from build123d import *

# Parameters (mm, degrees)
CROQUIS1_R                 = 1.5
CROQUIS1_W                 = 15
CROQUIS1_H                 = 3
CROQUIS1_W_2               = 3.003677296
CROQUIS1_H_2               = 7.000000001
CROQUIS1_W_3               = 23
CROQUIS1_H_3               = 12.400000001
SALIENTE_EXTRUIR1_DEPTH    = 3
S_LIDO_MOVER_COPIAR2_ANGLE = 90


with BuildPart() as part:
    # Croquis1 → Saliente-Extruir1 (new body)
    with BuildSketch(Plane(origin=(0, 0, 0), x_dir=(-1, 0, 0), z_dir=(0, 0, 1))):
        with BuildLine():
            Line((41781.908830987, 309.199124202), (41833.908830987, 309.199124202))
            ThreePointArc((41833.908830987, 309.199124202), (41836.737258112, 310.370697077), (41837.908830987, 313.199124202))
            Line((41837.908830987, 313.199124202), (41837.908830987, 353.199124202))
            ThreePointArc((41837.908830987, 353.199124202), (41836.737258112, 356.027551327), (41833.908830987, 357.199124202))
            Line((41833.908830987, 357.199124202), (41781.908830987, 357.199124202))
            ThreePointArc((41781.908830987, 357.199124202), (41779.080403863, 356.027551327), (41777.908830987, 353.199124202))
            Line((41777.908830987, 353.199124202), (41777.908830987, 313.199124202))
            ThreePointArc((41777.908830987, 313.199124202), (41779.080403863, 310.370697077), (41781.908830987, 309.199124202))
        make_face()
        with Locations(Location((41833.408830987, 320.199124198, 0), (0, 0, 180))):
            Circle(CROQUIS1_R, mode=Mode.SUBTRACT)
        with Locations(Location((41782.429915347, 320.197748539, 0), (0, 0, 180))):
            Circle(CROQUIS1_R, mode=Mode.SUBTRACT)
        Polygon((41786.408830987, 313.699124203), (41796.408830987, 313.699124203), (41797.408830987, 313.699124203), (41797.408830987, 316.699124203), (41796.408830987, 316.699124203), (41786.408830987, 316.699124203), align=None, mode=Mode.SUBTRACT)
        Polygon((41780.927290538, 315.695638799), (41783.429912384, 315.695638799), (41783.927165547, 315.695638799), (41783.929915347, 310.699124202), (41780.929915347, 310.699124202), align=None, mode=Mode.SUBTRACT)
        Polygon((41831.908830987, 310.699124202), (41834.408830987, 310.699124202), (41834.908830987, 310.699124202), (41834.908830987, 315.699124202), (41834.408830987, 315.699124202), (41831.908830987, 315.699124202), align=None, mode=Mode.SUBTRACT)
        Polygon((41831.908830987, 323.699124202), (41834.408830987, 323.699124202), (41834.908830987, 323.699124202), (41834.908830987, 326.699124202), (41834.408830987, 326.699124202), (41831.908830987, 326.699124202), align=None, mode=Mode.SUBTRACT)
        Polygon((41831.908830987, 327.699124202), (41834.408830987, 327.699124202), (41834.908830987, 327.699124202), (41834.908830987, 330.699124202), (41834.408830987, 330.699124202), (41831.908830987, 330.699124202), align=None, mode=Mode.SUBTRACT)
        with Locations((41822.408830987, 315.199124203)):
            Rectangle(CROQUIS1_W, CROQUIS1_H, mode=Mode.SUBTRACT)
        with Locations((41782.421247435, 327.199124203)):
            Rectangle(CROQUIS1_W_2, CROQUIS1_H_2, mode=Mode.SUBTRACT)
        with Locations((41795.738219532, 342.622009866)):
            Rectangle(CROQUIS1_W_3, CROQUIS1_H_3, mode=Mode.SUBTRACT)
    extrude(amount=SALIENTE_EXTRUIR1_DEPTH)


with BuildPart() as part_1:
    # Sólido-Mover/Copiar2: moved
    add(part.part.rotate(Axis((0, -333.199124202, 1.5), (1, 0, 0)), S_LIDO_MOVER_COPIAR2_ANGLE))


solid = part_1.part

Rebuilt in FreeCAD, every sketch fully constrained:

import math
import FreeCAD as App
import Part
import Sketcher

V = App.Vector


def add_polygon(sketch, points):
    """Adds a closed chain of lines whose ends are joined by coincident constraints."""
    first, n = sketch.GeometryCount, len(points)
    for a, b in zip(points, points[1:] + points[:1]):
        sketch.addGeometry(Part.LineSegment(App.Vector(*a, 0), App.Vector(*b, 0)), False)
    for i in range(n):
        sketch.addConstraint(Sketcher.Constraint("Coincident", first + i, 2, first + (i + 1) % n, 1))

doc = App.newDocument("Part")
body = doc.addObject("PartDesign::Body", "Body")

# Sketch on XY plane
sketch1 = body.newObject("Sketcher::SketchObject", "Sketch")
sketch1.AttachmentSupport = (doc.getObject("XY_Plane"), [""])
sketch1.MapMode = "FlatFace"
sketch1.addGeometry(Part.LineSegment(V(-41781.9, -309.2, 0), V(-41833.9, -309.2, 0)), False)  # 0
sketch1.addGeometry(Part.ArcOfCircle(Part.Circle(V(-41833.9, -313.2, 0), V(0, 0, 1), 4), math.radians(90), math.radians(180)), False)  # 1
sketch1.addGeometry(Part.LineSegment(V(-41837.9, -313.2, 0), V(-41837.9, -353.2, 0)), False)  # 2
sketch1.addGeometry(Part.ArcOfCircle(Part.Circle(V(-41833.9, -353.2, 0), V(0, 0, 1), 4), math.radians(180), math.radians(270)), False)  # 3
sketch1.addGeometry(Part.LineSegment(V(-41833.9, -357.2, 0), V(-41781.9, -357.2, 0)), False)  # 4
sketch1.addGeometry(Part.ArcOfCircle(Part.Circle(V(-41781.9, -353.2, 0), V(0, 0, 1), 4), math.radians(-90), math.radians(0)), False)  # 5
sketch1.addGeometry(Part.LineSegment(V(-41777.9, -353.2, 0), V(-41777.9, -313.2, 0)), False)  # 6
sketch1.addGeometry(Part.ArcOfCircle(Part.Circle(V(-41781.9, -313.2, 0), V(0, 0, 1), 4), math.radians(0), math.radians(90)), False)  # 7
add_polygon(sketch1, [(-41780.9, -310.7), (-41780.9, -315.7), (-41783.9, -315.7), (-41783.9, -310.7)])  # lines 8-11
add_polygon(sketch1, [(-41797.4, -313.7), (-41786.4, -313.7), (-41786.4, -316.7), (-41797.4, -316.7)])  # lines 12-15
sketch1.addGeometry(Part.Circle(V(-41782.4, -320.2, 0), V(0, 0, 1), 1.5), False)  # 16
add_polygon(sketch1, [(-41783.9, -323.7), (-41780.9, -323.7), (-41780.9, -330.7), (-41783.9, -330.7)])  # lines 17-20
add_polygon(sketch1, [(-41829.9, -313.7), (-41814.9, -313.7), (-41814.9, -316.7), (-41829.9, -316.7)])  # lines 21-24
add_polygon(sketch1, [(-41834.9, -310.7), (-41831.9, -310.7), (-41831.9, -315.7), (-41834.9, -315.7)])  # lines 25-28
sketch1.addGeometry(Part.Circle(V(-41833.4, -320.2, 0), V(0, 0, 1), 1.5), False)  # 29
add_polygon(sketch1, [(-41834.9, -323.7), (-41831.9, -323.7), (-41831.9, -326.7), (-41834.9, -326.7)])  # lines 30-33
add_polygon(sketch1, [(-41834.9, -327.7), (-41831.9, -327.7), (-41831.9, -330.7), (-41834.9, -330.7)])  # lines 34-37
add_polygon(sketch1, [(-41807.2, -336.4), (-41784.2, -336.4), (-41784.2, -348.8), (-41807.2, -348.8)])  # lines 38-41
sketch1.addConstraint([
    Sketcher.Constraint("Tangent", 0, 2, 1, 1),
    Sketcher.Constraint("Tangent", 1, 2, 2, 1),
    Sketcher.Constraint("Tangent", 2, 2, 3, 1),
    Sketcher.Constraint("Tangent", 3, 2, 4, 1),
    Sketcher.Constraint("Tangent", 4, 2, 5, 1),
    Sketcher.Constraint("Tangent", 5, 2, 6, 1),
    Sketcher.Constraint("Tangent", 6, 2, 7, 1),
    Sketcher.Constraint("Tangent", 7, 2, 0, 1),
    Sketcher.Constraint("Horizontal", 0),
    Sketcher.Constraint("Vertical", 2),
    Sketcher.Constraint("Horizontal", 4),
    Sketcher.Constraint("Vertical", 6),
    Sketcher.Constraint("Horizontal", 9),
    Sketcher.Constraint("Horizontal", 11),
    Sketcher.Constraint("Horizontal", 12),
    Sketcher.Constraint("Vertical", 13),
    Sketcher.Constraint("Horizontal", 14),
    Sketcher.Constraint("Vertical", 15),
    Sketcher.Constraint("Horizontal", 17),
    Sketcher.Constraint("Vertical", 18),
    Sketcher.Constraint("Horizontal", 19),
    Sketcher.Constraint("Vertical", 20),
    Sketcher.Constraint("Horizontal", 21),
    Sketcher.Constraint("Vertical", 22),
    Sketcher.Constraint("Horizontal", 23),
    Sketcher.Constraint("Vertical", 24),
    Sketcher.Constraint("Horizontal", 25),
    Sketcher.Constraint("Vertical", 26),
    Sketcher.Constraint("Horizontal", 27),
    Sketcher.Constraint("Vertical", 28),
    Sketcher.Constraint("Horizontal", 30),
    Sketcher.Constraint("Vertical", 31),
    Sketcher.Constraint("Horizontal", 32),
    Sketcher.Constraint("Vertical", 33),
    Sketcher.Constraint("Horizontal", 34),
    Sketcher.Constraint("Vertical", 35),
    Sketcher.Constraint("Horizontal", 36),
    Sketcher.Constraint("Vertical", 37),
    Sketcher.Constraint("Horizontal", 38),
    Sketcher.Constraint("Vertical", 39),
    Sketcher.Constraint("Horizontal", 40),
    Sketcher.Constraint("Vertical", 41),
    Sketcher.Constraint("Equal", 1, 3),
    Sketcher.Constraint("Equal", 3, 5),
    Sketcher.Constraint("Equal", 5, 7),
    Sketcher.Constraint("Equal", 16, 29),
    Sketcher.Constraint("Horizontal", 15, 2, 21, 2),
    Sketcher.Constraint("Horizontal", 14, 2, 22, 2),
    Sketcher.Constraint("Horizontal", 11, 2, 25, 2),
    Sketcher.Constraint("Horizontal", 20, 2, 30, 2),
    Sketcher.Constraint("Horizontal", 19, 2, 35, 2),
    Sketcher.Constraint("Vertical", 26, 2, 30, 2),
    Sketcher.Constraint("Vertical", 28, 2, 32, 2),
    Sketcher.Constraint("Vertical", 31, 2, 34, 2),
    Sketcher.Constraint("Vertical", 33, 2, 36, 2),
    Sketcher.Constraint("Equal", 11, 25),
    Sketcher.Constraint("Equal", 36, 13),
    Sketcher.Constraint("Equal", 24, 31),
    Sketcher.Constraint("Equal", 33, 35),
    Sketcher.Constraint("Diameter", 16, 3.0),
    Sketcher.Constraint("Radius", 1, 4.0),
    Sketcher.Constraint("DistanceX", 0, 2, 0, 1, 52.0),
    Sketcher.Constraint("DistanceX", 11, 1, 11, 2, 3.0),
    Sketcher.Constraint("DistanceX", 12, 1, 12, 2, 11.0),
    Sketcher.Constraint("DistanceX", 21, 1, 21, 2, 15.0),
    Sketcher.Constraint("DistanceX", 38, 1, 38, 2, 23.0),
    Sketcher.Constraint("DistanceY", 2, 2, 2, 1, 40.0),
    Sketcher.Constraint("DistanceY", 18, 2, 18, 1, 7.0),
    Sketcher.Constraint("DistanceY", 26, 2, 26, 1, 5.0),
    Sketcher.Constraint("DistanceY", 39, 2, 39, 1, 12.4),
    Sketcher.Constraint("DistanceY", 29, 3, 1, 3, 7.0),
    Sketcher.Constraint("DistanceY", 12, 2, 10, 2, 3.0),
    Sketcher.Constraint("DistanceY", 17, 2, 13, 2, 7.0),
    Sketcher.Constraint("DistanceX", 1, 3, 21, 2, 19.0),
    Sketcher.Constraint("DistanceX", 0, 2, 25, 2, 2.0),
    Sketcher.Constraint("DistanceX", 1, 3, 29, 3, 0.5),
    Sketcher.Constraint("DistanceY", 10, 2, 7, 2, 1.5),
    Sketcher.Constraint("DistanceX", 12, 2, 7, 3, 4.5),
    Sketcher.Constraint("DistanceX", 9, 2, 9, 1, 2.999875),
    Sketcher.Constraint("DistanceX", 17, 1, 17, 2, 3.003677),
    Sketcher.Constraint("DistanceX", 1, 3, -1, 1, 41833.908831),
    Sketcher.Constraint("DistanceY", 16, 3, -1, 1, 320.197749),
    Sketcher.Constraint("DistanceX", 8, 2, -1, 1, 41780.927291),
    Sketcher.Constraint("DistanceY", 8, 2, -1, 1, 315.695639),
    Sketcher.Constraint("DistanceX", 17, 2, -1, 1, 41780.919409),
    Sketcher.Constraint("DistanceX", 38, 2, -1, 1, 41784.23822),
    Sketcher.Constraint("DistanceY", 38, 2, -1, 1, 336.42201),
    Sketcher.Constraint("DistanceX", 9, 2, 16, 3, 1.49725),
    Sketcher.Constraint("DistanceX", 10, 2, 9, 2, 0.00275),
    Sketcher.Constraint("Distance", 8, 4.996515),
])
pad1 = body.newObject("PartDesign::Pad", "Pad")
pad1.Profile = sketch1
pad1.Length = 3
body2 = doc.addObject("PartDesign::Body", "Body001")
doc.recompute()

body.Placement = App.Placement(V(0, -331.699124, 334.699124), App.Rotation(V(1, 0, 0), 90))
boolean = body2.newObject("PartDesign::Boolean", "Boolean")
boolean.Type = "Fuse"
boolean.addObjects([body])

doc.recompute()
